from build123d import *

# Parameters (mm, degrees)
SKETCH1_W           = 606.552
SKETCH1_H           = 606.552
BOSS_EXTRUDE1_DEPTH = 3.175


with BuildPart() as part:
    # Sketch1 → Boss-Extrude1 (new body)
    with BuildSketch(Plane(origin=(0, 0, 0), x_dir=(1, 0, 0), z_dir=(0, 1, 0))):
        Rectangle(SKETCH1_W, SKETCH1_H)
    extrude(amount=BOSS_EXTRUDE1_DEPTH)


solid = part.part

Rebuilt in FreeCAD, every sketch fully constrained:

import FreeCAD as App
import Part
import Sketcher
from FreeCAD import Vector
Q = App.Units.Quantity


def add_polygon(sketch, points):
    """Adds a closed chain of lines whose ends are joined by coincident constraints."""
    first, n = sketch.GeometryCount, len(points)
    for a, b in zip(points, points[1:] + points[:1]):
        sketch.addGeometry(Part.LineSegment(App.Vector(*a, 0), App.Vector(*b, 0)), False)
    for i in range(n):
        sketch.addConstraint(Sketcher.Constraint("Coincident", first + i, 2, first + (i + 1) % n, 1))

doc = App.newDocument("Part")
params = doc.addObject("Spreadsheet::Sheet", "Params")
for row, (alias, value) in enumerate([
    ("sketch1_width", "23.88 in"),
    ("pad1_length", "0.125 in"),
], start=1):
    params.set(f"A{row}", alias)
    params.set(f"B{row}", "=" + value)
    params.setAlias(f"B{row}", alias)

body = doc.addObject("PartDesign::Body", "Body")

# Sketch on XZ plane
sketch1 = body.newObject("Sketcher::SketchObject", "Sketch")
sketch1.AttachmentSupport = (doc.getObject("XZ_Plane"), [""])
sketch1.MapMode = "FlatFace"
add_polygon(sketch1, [(-303, -303), (-303, 303), (303, 303), (303, -303)])  # lines 0-3
sketch1.addConstraint(Sketcher.Constraint("Vertical", 0))
sketch1.addConstraint(Sketcher.Constraint("Horizontal", 1))
sketch1.addConstraint(Sketcher.Constraint("Vertical", 2))
sketch1.addConstraint(Sketcher.Constraint("Horizontal", 3))
sketch1.addConstraint(Sketcher.Constraint("Symmetric", 0, 2, 2, 2, -1, 1))
sketch1.addConstraint(Sketcher.Constraint("Equal", 3, 0))
sketch1.addConstraint(Sketcher.Constraint("DistanceX", 1, 1, 1, 2, Q("23.88 in")))
sketch1.setExpression("Constraints[10]", "Params.sketch1_width")
pad1 = body.newObject("PartDesign::Pad", "Pad")
pad1.Profile = sketch1
pad1.setExpression("Length", "Params.pad1_length")
pad1.Reversed = True

doc.recompute()
